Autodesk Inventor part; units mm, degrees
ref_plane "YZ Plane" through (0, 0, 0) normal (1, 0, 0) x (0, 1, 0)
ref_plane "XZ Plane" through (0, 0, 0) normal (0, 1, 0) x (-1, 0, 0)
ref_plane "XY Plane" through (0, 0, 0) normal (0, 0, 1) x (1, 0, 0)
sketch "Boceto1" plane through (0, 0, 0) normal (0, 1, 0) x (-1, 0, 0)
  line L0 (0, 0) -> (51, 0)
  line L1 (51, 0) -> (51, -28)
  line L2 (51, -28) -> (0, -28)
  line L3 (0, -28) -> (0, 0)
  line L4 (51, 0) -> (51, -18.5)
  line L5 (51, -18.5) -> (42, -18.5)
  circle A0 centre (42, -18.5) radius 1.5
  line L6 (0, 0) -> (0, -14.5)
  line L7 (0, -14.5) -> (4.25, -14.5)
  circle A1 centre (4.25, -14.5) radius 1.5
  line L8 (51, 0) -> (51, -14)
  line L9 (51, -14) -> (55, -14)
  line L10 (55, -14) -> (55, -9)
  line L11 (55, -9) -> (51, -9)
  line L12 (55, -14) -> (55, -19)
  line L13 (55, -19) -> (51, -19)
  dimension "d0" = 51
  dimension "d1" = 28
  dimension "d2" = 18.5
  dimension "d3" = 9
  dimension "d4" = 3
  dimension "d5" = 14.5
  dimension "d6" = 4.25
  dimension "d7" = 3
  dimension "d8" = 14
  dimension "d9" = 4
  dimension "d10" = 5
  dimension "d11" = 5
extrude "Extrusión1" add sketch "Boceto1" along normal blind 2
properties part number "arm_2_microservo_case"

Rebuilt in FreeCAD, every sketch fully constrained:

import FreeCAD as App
import Part
import Sketcher
from FreeCAD import Vector
Q = App.Units.Quantity

doc = App.newDocument("Part")
body = doc.addObject("PartDesign::Body", "Body")

# Sketch on XZ plane
sketch1 = body.newObject("Sketcher::SketchObject", "Sketch")
sketch1.AttachmentSupport = (doc.getObject("XZ_Plane"), [""])
sketch1.MapMode = "FlatFace"
sketch1.addGeometry([
    Part.LineSegment(Vector(-51, 0, 0), Vector(0, 0, 0)),  # 0
    Part.LineSegment(Vector(0, 0, 0), Vector(0, -14.5, 0)),  # 1
    Part.LineSegment(Vector(0, -14.5, 0), Vector(0, -28, 0)),  # 2
    Part.LineSegment(Vector(0, -28, 0), Vector(-51, -28, 0)),  # 3
    Part.LineSegment(Vector(-51, -28, 0), Vector(-51, -19, 0)),  # 4
    Part.LineSegment(Vector(-51, -19, 0), Vector(-55, -19, 0)),  # 5
    Part.LineSegment(Vector(-55, -19, 0), Vector(-55, -9, 0)),  # 6
    Part.LineSegment(Vector(-55, -9, 0), Vector(-51, -9, 0)),  # 7
    Part.LineSegment(Vector(-51, -9, 0), Vector(-51, 0, 0)),  # 8
    Part.Circle(Vector(-4.25, -14.5, 0), Vector(0, 0, 1), 1.5),  # 9
    Part.Circle(Vector(-42, -18.5, 0), Vector(0, 0, 1), 1.5),  # 10
], False)
sketch1.addConstraint([
    Sketcher.Constraint("Coincident", 0, 2, 1, 1),
    Sketcher.Constraint("Coincident", 1, 2, 2, 1),
    Sketcher.Constraint("Coincident", 2, 2, 3, 1),
    Sketcher.Constraint("Coincident", 3, 2, 4, 1),
    Sketcher.Constraint("Coincident", 4, 2, 5, 1),
    Sketcher.Constraint("Coincident", 5, 2, 6, 1),
    Sketcher.Constraint("Coincident", 6, 2, 7, 1),
    Sketcher.Constraint("Coincident", 7, 2, 8, 1),
    Sketcher.Constraint("Coincident", 8, 2, 0, 1),
    Sketcher.Constraint("Horizontal", 0),
    Sketcher.Constraint("Vertical", 1),
    Sketcher.Constraint("Vertical", 2),
    Sketcher.Constraint("Horizontal", 3),
    Sketcher.Constraint("Vertical", 4),
    Sketcher.Constraint("Horizontal", 5),
    Sketcher.Constraint("Vertical", 6),
    Sketcher.Constraint("Horizontal", 7),
    Sketcher.Constraint("Vertical", 8),
    Sketcher.Constraint("Coincident", 0, 2, -1, 1),
    Sketcher.Constraint("Equal", 9, 10),
    Sketcher.Constraint("Horizontal", 9, 3, 1, 2),
    Sketcher.Constraint("Vertical", 4, 2, 7, 2),
    Sketcher.Constraint("Equal", 4, 8),
    Sketcher.Constraint("Diameter", 9, Q("3 mm")),
    Sketcher.Constraint("DistanceX", 0, 1, 0, 2, Q("51 mm")),
    Sketcher.Constraint("DistanceX", 5, 2, 5, 1, Q("4 mm")),
    Sketcher.Constraint("DistanceY", 4, 1, 4, 2, Q("9 mm")),
    Sketcher.Constraint("DistanceY", 1, 2, 1, 1, Q("14.5 mm")),
    Sketcher.Constraint("DistanceY", 2, 2, -1, 1, Q("28 mm")),
    Sketcher.Constraint("DistanceY", 10, 3, 9, 3, Q("4 mm")),
    Sketcher.Constraint("DistanceX", 3, 2, 10, 3, Q("9 mm")),
    Sketcher.Constraint("DistanceX", 9, 3, -1, 1, Q("4.25 mm")),
])
pad1 = body.newObject("PartDesign::Pad", "Pad")
pad1.Profile = sketch1
pad1.Length = 2
pad1.Reversed = True

doc.recompute()
